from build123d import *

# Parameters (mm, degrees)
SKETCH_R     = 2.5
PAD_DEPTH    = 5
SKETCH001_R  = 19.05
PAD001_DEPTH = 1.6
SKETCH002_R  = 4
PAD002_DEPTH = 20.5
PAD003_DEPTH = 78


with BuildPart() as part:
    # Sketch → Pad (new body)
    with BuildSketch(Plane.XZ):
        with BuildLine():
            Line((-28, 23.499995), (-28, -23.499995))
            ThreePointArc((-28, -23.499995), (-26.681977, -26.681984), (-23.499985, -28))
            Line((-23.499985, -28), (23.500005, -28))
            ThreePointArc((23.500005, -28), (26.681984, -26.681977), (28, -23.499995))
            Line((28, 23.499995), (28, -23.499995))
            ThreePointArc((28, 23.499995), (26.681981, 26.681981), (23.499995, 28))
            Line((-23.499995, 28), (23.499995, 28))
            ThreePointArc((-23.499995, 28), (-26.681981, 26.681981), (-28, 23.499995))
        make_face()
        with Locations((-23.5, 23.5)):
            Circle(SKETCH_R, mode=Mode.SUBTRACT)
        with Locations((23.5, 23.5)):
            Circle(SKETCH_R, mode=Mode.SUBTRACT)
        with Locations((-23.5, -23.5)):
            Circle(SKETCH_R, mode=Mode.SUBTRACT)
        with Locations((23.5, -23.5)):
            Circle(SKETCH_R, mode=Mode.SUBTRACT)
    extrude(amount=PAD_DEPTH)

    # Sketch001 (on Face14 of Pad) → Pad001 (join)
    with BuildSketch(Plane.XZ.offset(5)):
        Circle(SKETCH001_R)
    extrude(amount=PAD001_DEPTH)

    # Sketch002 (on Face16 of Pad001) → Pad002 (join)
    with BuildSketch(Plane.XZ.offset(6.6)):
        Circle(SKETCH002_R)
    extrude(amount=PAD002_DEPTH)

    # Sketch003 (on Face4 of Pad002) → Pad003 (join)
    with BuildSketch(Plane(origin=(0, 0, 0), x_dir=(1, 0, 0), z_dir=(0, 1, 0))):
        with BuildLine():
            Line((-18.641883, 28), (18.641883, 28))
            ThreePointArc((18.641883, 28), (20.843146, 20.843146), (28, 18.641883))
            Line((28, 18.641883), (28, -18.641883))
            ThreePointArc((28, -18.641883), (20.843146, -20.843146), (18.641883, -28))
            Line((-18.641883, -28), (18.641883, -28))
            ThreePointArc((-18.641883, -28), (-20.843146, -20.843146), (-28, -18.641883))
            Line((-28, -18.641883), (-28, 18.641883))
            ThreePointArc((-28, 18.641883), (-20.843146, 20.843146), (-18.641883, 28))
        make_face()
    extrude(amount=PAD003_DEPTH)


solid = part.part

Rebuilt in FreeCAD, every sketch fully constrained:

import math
import FreeCAD as App
import Part
import Sketcher
from FreeCAD import Vector

doc = App.newDocument("Part")
body = doc.addObject("PartDesign::Body", "Body")

# Sketch on XZ plane
sketch1 = body.newObject("Sketcher::SketchObject", "Sketch")
sketch1.AttachmentSupport = (doc.getObject("XZ_Plane"), [""])
sketch1.MapMode = "FlatFace"
sketch1.addGeometry(Part.LineSegment(Vector(-28, 23.5, 0), Vector(-28, -23.5, 0)), False)
sketch1.addGeometry(Part.ArcOfCircle(Part.Circle(Vector(-23.5, -23.5, 0), Vector(0, 0, 1), 4.5), math.radians(180), math.radians(270)), False)
sketch1.addGeometry(Part.LineSegment(Vector(-23.5, -28, 0), Vector(23.5, -28, 0)), False)
sketch1.addGeometry(Part.ArcOfCircle(Part.Circle(Vector(23.5, -23.5, 0), Vector(0, 0, 1), 4.5), math.radians(-90), math.radians(0)), False)
sketch1.addGeometry(Part.LineSegment(Vector(28, -23.5, 0), Vector(28, 23.5, 0)), False)
sketch1.addGeometry(Part.ArcOfCircle(Part.Circle(Vector(23.5, 23.5, 0), Vector(0, 0, 1), 4.5), math.radians(0), math.radians(90)), False)
sketch1.addGeometry(Part.LineSegment(Vector(23.5, 28, 0), Vector(-23.5, 28, 0)), False)
sketch1.addGeometry(Part.ArcOfCircle(Part.Circle(Vector(-23.5, 23.5, 0), Vector(0, 0, 1), 4.5), math.radians(90), math.radians(180)), False)
sketch1.addGeometry(Part.Circle(Vector(-23.5, -23.5, 0), Vector(0, 0, 1), 2.5), False)
sketch1.addGeometry(Part.Circle(Vector(23.5, -23.5, 0), Vector(0, 0, 1), 2.5), False)
sketch1.addGeometry(Part.Circle(Vector(-23.5, 23.5, 0), Vector(0, 0, 1), 2.5), False)
sketch1.addGeometry(Part.Circle(Vector(23.5, 23.5, 0), Vector(0, 0, 1), 2.5), False)
sketch1.addConstraint(Sketcher.Constraint("Tangent", 0, 2, 1, 1))
sketch1.addConstraint(Sketcher.Constraint("Coincident", 1, 2, 2, 1))
sketch1.addConstraint(Sketcher.Constraint("Tangent", 2, 2, 3, 1))
sketch1.addConstraint(Sketcher.Constraint("Tangent", 3, 2, 4, 1))
sketch1.addConstraint(Sketcher.Constraint("Tangent", 4, 2, 5, 1))
sketch1.addConstraint(Sketcher.Constraint("Tangent", 5, 2, 6, 1))
sketch1.addConstraint(Sketcher.Constraint("Tangent", 6, 2, 7, 1))
sketch1.addConstraint(Sketcher.Constraint("Tangent", 7, 2, 0, 1))
sketch1.addConstraint(Sketcher.Constraint("Vertical", 0))
sketch1.addConstraint(Sketcher.Constraint("Horizontal", 2))
sketch1.addConstraint(Sketcher.Constraint("Vertical", 4))
sketch1.addConstraint(Sketcher.Constraint("Horizontal", 6))
sketch1.addConstraint(Sketcher.Constraint("Coincident", 8, 3, 1, 3))
sketch1.addConstraint(Sketcher.Constraint("Coincident", 9, 3, 3, 3))
sketch1.addConstraint(Sketcher.Constraint("Coincident", 10, 3, 7, 3))
sketch1.addConstraint(Sketcher.Constraint("Coincident", 11, 3, 5, 3))
sketch1.addConstraint(Sketcher.Constraint("Equal", 1, 3))
sketch1.addConstraint(Sketcher.Constraint("Equal", 3, 5))
sketch1.addConstraint(Sketcher.Constraint("Equal", 5, 7))
sketch1.addConstraint(Sketcher.Constraint("Equal", 8, 9))
sketch1.addConstraint(Sketcher.Constraint("Equal", 9, 10))
sketch1.addConstraint(Sketcher.Constraint("Equal", 10, 11))
sketch1.addConstraint(Sketcher.Constraint("Symmetric", 1, 3, 5, 3, -1, 1))
sketch1.addConstraint(Sketcher.Constraint("Equal", 2, 6))
sketch1.addConstraint(Sketcher.Constraint("Equal", 6, 0))
sketch1.addConstraint(Sketcher.Constraint("Diameter", 8, 5.0))
sketch1.addConstraint(Sketcher.Constraint("Radius", 1, 4.5))
sketch1.addConstraint(Sketcher.Constraint("DistanceX", 0, 2, -1, 1, 28.0))
pad1 = body.newObject("PartDesign::Pad", "Pad")
pad1.Profile = sketch1
pad1.Length = 5

# Sketch on XZ plane
sketch2 = body.newObject("Sketcher::SketchObject", "Sketch001")
sketch2.AttachmentSupport = (doc.getObject("XZ_Plane"), [""])
sketch2.MapMode = "FlatFace"
sketch2.AttachmentOffset = App.Placement(Vector(0, 0, 5), App.Rotation())
sketch2.addGeometry(Part.Circle(Vector(0, 0, 0), Vector(0, 0, 1), 19), False)
sketch2.addConstraint(Sketcher.Constraint("Coincident", 0, 3, -1, 1))
sketch2.addConstraint(Sketcher.Constraint("Diameter", 0, 38.1))
pad2 = body.newObject("PartDesign::Pad", "Pad001")
pad2.Profile = sketch2
pad2.Length = 1.6

# Sketch on XZ plane
sketch3 = body.newObject("Sketcher::SketchObject", "Sketch002")
sketch3.AttachmentSupport = (doc.getObject("XZ_Plane"), [""])
sketch3.MapMode = "FlatFace"
sketch3.AttachmentOffset = App.Placement(Vector(0, 0, 6.6), App.Rotation())
sketch3.addGeometry(Part.Circle(Vector(0, 0, 0), Vector(0, 0, 1), 4), False)
sketch3.addConstraint(Sketcher.Constraint("Coincident", 0, 3, -1, 1))
sketch3.addConstraint(Sketcher.Constraint("Diameter", 0, 8.0))
pad3 = body.newObject("PartDesign::Pad", "Pad002")
pad3.Profile = sketch3
pad3.Length = 20.5

# Sketch on XZ plane
sketch4 = body.newObject("Sketcher::SketchObject", "Sketch003")
sketch4.AttachmentSupport = (doc.getObject("XZ_Plane"), [""])
sketch4.MapMode = "FlatFace"
sketch4.addGeometry(Part.LineSegment(Vector(19, -28, 0), Vector(-19, -28, 0)), False)
sketch4.addGeometry(Part.ArcOfCircle(Part.Circle(Vector(-27, -27, 0), Vector(0, 0, 1), 8), math.radians(-11), math.radians(101)), False)
sketch4.addGeometry(Part.LineSegment(Vector(-28, -19, 0), Vector(-28, 19, 0)), False)
sketch4.addGeometry(Part.ArcOfCircle(Part.Circle(Vector(-27, 27, 0), Vector(0, 0, 1), 8), math.radians(-101), math.radians(11)), False)
sketch4.addGeometry(Part.LineSegment(Vector(-19, 28, 0), Vector(19, 28, 0)), False)
sketch4.addGeometry(Part.ArcOfCircle(Part.Circle(Vector(27, 27, 0), Vector(0, 0, 1), 8), math.radians(169), math.radians(281)), False)
sketch4.addGeometry(Part.LineSegment(Vector(28, 19, 0), Vector(28, -19, 0)), False)
sketch4.addGeometry(Part.ArcOfCircle(Part.Circle(Vector(27, -27, 0), Vector(0, 0, 1), 8), math.radians(79), math.radians(191)), False)
sketch4.addConstraint(Sketcher.Constraint("Coincident", 0, 2, 1, 1))
sketch4.addConstraint(Sketcher.Constraint("Coincident", 1, 2, 2, 1))
sketch4.addConstraint(Sketcher.Constraint("Coincident", 2, 2, 3, 1))
sketch4.addConstraint(Sketcher.Constraint("Coincident", 3, 2, 4, 1))
sketch4.addConstraint(Sketcher.Constraint("Coincident", 4, 2, 5, 1))
sketch4.addConstraint(Sketcher.Constraint("Coincident", 5, 2, 6, 1))
sketch4.addConstraint(Sketcher.Constraint("Coincident", 6, 2, 7, 1))
sketch4.addConstraint(Sketcher.Constraint("Coincident", 7, 2, 0, 1))
sketch4.addConstraint(Sketcher.Constraint("Horizontal", 0))
sketch4.addConstraint(Sketcher.Constraint("Vertical", 2))
sketch4.addConstraint(Sketcher.Constraint("Horizontal", 4))
sketch4.addConstraint(Sketcher.Constraint("Vertical", 6))
sketch4.addConstraint(Sketcher.Constraint("Equal", 1, 3))
sketch4.addConstraint(Sketcher.Constraint("Equal", 3, 5))
sketch4.addConstraint(Sketcher.Constraint("Equal", 5, 7))
sketch4.addConstraint(Sketcher.Constraint("Symmetric", 1, 3, 5, 3, -1, 1))
sketch4.addConstraint(Sketcher.Constraint("Symmetric", 3, 3, 7, 3, -1, 1))
sketch4.addConstraint(Sketcher.Constraint("Symmetric", 3, 3, 5, 3, -2))
sketch4.addConstraint(Sketcher.Constraint("Horizontal", 2, 2, 5, 2))
sketch4.addConstraint(Sketcher.Constraint("Vertical", 0, 2, 3, 2))
sketch4.addConstraint(Sketcher.Constraint("Equal", 4, 2))
sketch4.addConstraint(Sketcher.Constraint("Radius", 1, 8.000001))
sketch4.addConstraint(Sketcher.Constraint("DistanceY", 0, 2, -1, 1, 28.0))
sketch4.addConstraint(Sketcher.Constraint("DistanceX", 1, 2, -1, 1, 28.0))
sketch4.addConstraint(Sketcher.Constraint("DistanceY", 1, 3, 3, 3, 53.000002))
pad4 = body.newObject("PartDesign::Pad", "Pad003")
pad4.Profile = sketch4
pad4.Length = 78
pad4.Reversed = True

doc.recompute()
